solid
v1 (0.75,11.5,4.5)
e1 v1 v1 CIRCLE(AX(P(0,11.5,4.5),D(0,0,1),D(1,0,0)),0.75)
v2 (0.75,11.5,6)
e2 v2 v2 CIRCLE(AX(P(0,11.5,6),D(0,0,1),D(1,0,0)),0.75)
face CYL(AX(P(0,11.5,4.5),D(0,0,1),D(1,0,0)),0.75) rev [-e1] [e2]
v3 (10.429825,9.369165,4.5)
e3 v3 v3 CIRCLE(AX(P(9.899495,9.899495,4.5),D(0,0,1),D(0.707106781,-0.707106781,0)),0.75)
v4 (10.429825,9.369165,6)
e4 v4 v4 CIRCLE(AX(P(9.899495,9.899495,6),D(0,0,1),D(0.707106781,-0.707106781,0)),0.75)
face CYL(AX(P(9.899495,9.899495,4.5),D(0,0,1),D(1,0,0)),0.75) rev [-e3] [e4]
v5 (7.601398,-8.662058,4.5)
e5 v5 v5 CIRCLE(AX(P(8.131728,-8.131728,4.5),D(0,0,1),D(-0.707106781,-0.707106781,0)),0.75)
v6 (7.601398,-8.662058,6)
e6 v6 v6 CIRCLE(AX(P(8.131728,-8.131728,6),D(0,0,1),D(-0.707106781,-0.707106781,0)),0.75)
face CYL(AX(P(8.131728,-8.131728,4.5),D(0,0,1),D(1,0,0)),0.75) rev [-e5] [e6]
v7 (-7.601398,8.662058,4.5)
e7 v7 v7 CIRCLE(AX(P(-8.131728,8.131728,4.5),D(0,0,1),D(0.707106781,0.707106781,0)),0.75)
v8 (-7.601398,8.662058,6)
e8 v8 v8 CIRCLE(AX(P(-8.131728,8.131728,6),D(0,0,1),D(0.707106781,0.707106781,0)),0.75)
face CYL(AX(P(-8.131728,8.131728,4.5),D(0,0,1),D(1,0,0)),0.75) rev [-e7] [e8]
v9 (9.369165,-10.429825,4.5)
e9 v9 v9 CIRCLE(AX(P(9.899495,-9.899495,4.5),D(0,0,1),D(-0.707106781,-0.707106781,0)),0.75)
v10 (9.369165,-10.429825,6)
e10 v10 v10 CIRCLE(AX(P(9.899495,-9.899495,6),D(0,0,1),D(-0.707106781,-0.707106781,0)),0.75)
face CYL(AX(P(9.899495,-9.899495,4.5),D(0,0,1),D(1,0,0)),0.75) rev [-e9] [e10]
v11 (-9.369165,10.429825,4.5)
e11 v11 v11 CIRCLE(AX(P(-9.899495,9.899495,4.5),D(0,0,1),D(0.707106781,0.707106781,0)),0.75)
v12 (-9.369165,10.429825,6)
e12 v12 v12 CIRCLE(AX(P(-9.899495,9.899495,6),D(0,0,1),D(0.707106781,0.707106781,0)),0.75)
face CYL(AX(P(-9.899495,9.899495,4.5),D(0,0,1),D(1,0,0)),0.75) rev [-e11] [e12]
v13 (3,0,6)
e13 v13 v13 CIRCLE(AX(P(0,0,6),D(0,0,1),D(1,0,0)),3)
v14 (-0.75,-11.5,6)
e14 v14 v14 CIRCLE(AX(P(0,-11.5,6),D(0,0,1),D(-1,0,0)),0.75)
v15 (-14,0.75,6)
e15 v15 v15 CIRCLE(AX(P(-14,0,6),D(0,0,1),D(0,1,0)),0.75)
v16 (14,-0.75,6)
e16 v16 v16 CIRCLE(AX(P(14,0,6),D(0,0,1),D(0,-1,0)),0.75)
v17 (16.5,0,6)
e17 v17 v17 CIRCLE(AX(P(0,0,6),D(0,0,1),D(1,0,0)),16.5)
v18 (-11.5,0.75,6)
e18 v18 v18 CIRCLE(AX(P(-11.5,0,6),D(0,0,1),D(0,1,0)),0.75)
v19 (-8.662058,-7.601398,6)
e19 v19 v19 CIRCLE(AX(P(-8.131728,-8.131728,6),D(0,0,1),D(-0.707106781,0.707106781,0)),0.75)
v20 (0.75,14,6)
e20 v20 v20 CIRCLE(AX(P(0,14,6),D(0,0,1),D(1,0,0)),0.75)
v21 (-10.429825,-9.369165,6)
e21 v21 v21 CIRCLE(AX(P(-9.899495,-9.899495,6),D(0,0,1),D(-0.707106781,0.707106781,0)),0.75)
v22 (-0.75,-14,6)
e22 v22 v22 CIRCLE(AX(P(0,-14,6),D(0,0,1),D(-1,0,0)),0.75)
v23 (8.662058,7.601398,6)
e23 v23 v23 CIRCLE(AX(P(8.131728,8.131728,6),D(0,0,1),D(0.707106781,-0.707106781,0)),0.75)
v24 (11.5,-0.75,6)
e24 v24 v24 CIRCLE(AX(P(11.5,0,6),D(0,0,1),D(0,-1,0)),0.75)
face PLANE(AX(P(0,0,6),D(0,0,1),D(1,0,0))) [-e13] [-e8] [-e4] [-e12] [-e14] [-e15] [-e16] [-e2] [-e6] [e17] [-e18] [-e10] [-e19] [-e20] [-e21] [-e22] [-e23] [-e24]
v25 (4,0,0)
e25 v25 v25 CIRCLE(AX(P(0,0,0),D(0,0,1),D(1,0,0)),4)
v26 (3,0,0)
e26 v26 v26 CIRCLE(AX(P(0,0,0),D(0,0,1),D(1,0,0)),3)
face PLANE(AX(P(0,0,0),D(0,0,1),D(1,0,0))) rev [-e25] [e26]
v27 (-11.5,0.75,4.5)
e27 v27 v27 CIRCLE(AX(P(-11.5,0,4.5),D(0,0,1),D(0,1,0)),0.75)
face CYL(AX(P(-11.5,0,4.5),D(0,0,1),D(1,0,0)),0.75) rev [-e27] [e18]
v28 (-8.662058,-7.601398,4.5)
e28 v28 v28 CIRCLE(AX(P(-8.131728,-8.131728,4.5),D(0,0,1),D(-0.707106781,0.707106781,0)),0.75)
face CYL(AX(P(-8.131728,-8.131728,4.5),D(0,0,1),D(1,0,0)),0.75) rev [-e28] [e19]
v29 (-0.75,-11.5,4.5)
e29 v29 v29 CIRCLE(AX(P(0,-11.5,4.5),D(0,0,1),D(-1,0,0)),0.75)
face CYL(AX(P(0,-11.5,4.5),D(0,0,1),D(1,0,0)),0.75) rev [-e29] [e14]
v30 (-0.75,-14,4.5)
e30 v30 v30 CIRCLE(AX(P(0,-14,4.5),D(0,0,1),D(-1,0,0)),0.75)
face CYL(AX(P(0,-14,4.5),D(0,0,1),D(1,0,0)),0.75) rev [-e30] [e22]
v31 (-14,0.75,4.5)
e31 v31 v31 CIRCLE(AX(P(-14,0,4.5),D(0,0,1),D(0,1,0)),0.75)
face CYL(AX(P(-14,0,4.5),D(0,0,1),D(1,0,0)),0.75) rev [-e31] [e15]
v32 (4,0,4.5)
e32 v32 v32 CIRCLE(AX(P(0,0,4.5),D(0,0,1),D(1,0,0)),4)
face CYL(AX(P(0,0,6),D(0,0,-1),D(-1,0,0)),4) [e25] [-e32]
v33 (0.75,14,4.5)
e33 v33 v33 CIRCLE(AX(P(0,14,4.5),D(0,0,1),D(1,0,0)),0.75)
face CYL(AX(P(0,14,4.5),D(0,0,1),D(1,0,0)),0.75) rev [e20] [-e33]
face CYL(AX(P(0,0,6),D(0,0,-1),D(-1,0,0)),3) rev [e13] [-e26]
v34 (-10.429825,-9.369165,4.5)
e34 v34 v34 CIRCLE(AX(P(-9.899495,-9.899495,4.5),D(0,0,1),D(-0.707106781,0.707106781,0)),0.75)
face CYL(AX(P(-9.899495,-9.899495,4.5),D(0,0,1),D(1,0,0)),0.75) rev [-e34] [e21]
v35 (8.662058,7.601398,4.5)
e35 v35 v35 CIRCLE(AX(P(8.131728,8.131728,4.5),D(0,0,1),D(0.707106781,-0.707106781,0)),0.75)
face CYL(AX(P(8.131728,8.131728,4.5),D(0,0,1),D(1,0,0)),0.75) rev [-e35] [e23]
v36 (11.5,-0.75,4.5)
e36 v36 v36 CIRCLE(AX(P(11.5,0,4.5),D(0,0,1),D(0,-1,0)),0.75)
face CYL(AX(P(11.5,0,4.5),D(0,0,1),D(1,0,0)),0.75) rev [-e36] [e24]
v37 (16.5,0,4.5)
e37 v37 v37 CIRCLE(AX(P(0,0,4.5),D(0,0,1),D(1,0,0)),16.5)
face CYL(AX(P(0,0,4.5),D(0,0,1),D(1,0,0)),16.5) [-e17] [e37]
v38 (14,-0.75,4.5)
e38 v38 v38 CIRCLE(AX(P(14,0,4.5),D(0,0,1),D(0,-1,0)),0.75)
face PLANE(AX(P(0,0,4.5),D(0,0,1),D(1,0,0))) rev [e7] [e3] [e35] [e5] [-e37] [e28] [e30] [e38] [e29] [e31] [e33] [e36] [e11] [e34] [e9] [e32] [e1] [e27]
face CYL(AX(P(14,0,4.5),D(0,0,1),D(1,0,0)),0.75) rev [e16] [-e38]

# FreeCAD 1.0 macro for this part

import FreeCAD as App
import Part
import Sketcher
from FreeCAD import Vector
Q = App.Units.Quantity

doc = App.newDocument("Part")
body = doc.addObject("PartDesign::Body", "Body")

# Sketch on XY plane
sketch1 = body.newObject("Sketcher::SketchObject", "Sketch")
sketch1.AttachmentSupport = (doc.getObject("XY_Plane"), [""])
sketch1.MapMode = "FlatFace"
sketch1.addGeometry(Part.Circle(Vector(0, 0, 0), Vector(0, 0, 1), 4), False)
sketch1.addGeometry(Part.Circle(Vector(0, 0, 0), Vector(0, 0, 1), 3), False)
sketch1.addConstraint(Sketcher.Constraint("Coincident", 0, 3, -1, 1))
sketch1.addConstraint(Sketcher.Constraint("Coincident", 1, 3, -1, 1))
sketch1.addConstraint(Sketcher.Constraint("Diameter", 0, Q("8 mm")))
sketch1.addConstraint(Sketcher.Constraint("Diameter", 1, Q("6 mm")))
pad1 = body.newObject("PartDesign::Pad", "Pad")
pad1.Profile = sketch1
pad1.Length = 6

# Sketch on XY plane
sketch2 = body.newObject("Sketcher::SketchObject", "Sketch001")
sketch2.AttachmentSupport = (doc.getObject("XY_Plane"), [""])
sketch2.MapMode = "FlatFace"
sketch2.AttachmentOffset = App.Placement(Vector(0, 0, 4.5), App.Rotation())
sketch2.addGeometry(Part.Circle(Vector(0, 0, 0), Vector(0, 0, 1), 16.5), False)
sketch2.addGeometry(Part.Circle(Vector(0, 0, 0), Vector(0, 0, 1), 4), False)
sketch2.addConstraint(Sketcher.Constraint("Coincident", 0, 3, -1, 1))
sketch2.addConstraint(Sketcher.Constraint("Coincident", 1, 3, -1, 1))
sketch2.addConstraint(Sketcher.Constraint("Diameter", 0, Q("33 mm")))
sketch2.addConstraint(Sketcher.Constraint("Diameter", 1, Q("8 mm")))
pad2 = body.newObject("PartDesign::Pad", "Pad001")
pad2.Profile = sketch2
pad2.Length = 1.5

# Sketch on XY plane
sketch3 = body.newObject("Sketcher::SketchObject", "Sketch002")
sketch3.AttachmentSupport = (doc.getObject("XY_Plane"), [""])
sketch3.MapMode = "FlatFace"
sketch3.AttachmentOffset = App.Placement(Vector(0, 0, 6), App.Rotation())
sketch3.addGeometry(Part.Circle(Vector(0, 14, 0), Vector(0, 0, 1), 0.75), False)
sketch3.addGeometry(Part.Circle(Vector(0, 11.5, 0), Vector(0, 0, 1), 0.75), False)
sketch3.addConstraint(Sketcher.Constraint("Equal", 0, 1))
sketch3.addConstraint(Sketcher.Constraint("PointOnObject", 0, 3, -2))
sketch3.addConstraint(Sketcher.Constraint("PointOnObject", 1, 3, -2))
sketch3.addConstraint(Sketcher.Constraint("Diameter", 0, Q("1.5 mm")))
sketch3.addConstraint(Sketcher.Constraint("DistanceY", -1, 1, 0, 3, Q("14 mm")))
sketch3.addConstraint(Sketcher.Constraint("DistanceY", -1, 1, 1, 3, Q("11.5 mm")))
pocket1 = body.newObject("PartDesign::Pocket", "Pocket")
pocket1.Profile = sketch3
pocket1.Length = 1.5
doc.recompute()

polarpattern = body.newObject("PartDesign::PolarPattern", "PolarPattern")
polarpattern.Originals = [pocket1]
polarpattern.Axis = (doc.getObject("Z_Axis"), [""])
polarpattern.Angle = 360
polarpattern.Occurrences = 8
body.Tip = polarpattern

doc.recompute()
